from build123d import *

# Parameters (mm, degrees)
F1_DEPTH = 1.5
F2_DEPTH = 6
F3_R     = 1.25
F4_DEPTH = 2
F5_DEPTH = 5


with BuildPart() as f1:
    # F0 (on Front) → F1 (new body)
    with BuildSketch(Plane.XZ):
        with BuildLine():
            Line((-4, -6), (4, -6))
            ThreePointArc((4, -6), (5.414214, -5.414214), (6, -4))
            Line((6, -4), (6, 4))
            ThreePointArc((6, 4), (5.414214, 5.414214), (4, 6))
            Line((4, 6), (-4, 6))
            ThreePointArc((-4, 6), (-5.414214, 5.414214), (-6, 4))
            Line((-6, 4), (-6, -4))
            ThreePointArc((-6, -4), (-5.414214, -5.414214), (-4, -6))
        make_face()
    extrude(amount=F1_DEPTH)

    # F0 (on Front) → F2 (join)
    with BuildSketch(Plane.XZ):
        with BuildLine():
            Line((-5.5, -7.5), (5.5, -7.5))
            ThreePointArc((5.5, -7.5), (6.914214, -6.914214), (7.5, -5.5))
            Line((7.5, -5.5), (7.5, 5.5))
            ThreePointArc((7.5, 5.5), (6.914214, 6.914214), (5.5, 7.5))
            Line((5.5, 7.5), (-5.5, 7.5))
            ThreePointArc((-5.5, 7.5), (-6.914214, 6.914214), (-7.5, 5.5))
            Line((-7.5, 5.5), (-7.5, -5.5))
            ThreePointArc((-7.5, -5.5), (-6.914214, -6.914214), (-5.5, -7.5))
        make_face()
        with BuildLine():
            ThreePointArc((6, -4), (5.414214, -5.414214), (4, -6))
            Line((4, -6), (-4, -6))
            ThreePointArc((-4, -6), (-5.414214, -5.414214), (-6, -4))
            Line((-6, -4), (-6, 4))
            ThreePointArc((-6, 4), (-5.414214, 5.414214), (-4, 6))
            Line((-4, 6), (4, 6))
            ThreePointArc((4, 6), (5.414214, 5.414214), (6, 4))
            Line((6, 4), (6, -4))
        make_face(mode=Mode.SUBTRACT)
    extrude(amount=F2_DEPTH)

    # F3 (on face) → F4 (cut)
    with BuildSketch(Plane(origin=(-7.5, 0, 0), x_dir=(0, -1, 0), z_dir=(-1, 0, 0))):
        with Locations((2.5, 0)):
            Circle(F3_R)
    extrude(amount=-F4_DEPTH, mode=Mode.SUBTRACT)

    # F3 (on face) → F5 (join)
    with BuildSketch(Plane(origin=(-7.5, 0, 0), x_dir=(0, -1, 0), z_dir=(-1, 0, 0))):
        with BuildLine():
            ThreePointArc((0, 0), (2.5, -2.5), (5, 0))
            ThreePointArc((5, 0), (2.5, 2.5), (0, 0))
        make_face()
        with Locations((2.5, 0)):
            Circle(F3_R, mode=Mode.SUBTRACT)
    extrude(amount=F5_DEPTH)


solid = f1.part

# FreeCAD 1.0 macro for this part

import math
import FreeCAD as App
import Part
import Sketcher
from FreeCAD import Vector

doc = App.newDocument("Part")
body = doc.addObject("PartDesign::Body", "Body")

# Sketch on XZ plane
sketch1 = doc.addObject("Sketcher::SketchObject", "Sketch")
body.addObject(sketch1)
sketch1.AttachmentSupport = (doc.XZ_Plane, [""])
sketch1.MapMode = "FlatFace"
sketch1.addGeometry([
    Part.LineSegment(Vector(-4, -6, 0), Vector(4, -6, 0)),  # 0
    Part.ArcOfCircle(Part.Circle(Vector(4, -4, 0), Vector(0, 0, 1), 2), math.radians(-90), math.radians(0)),  # 1
    Part.LineSegment(Vector(6, -4, 0), Vector(6, 4, 0)),  # 2
    Part.ArcOfCircle(Part.Circle(Vector(4, 4, 0), Vector(0, 0, 1), 2), math.radians(0), math.radians(90)),  # 3
    Part.LineSegment(Vector(4, 6, 0), Vector(-4, 6, 0)),  # 4
    Part.ArcOfCircle(Part.Circle(Vector(-4, 4, 0), Vector(0, 0, 1), 2), math.radians(90), math.radians(180)),  # 5
    Part.LineSegment(Vector(-6, 4, 0), Vector(-6, -4, 0)),  # 6
    Part.ArcOfCircle(Part.Circle(Vector(-4, -4, 0), Vector(0, 0, 1), 2), math.radians(180), math.radians(270)),  # 7
], False)
sketch1.addConstraint([
    Sketcher.Constraint("Tangent", 0, 2, 1, 1),
    Sketcher.Constraint("Tangent", 1, 2, 2, 1),
    Sketcher.Constraint("Tangent", 2, 2, 3, 1),
    Sketcher.Constraint("Tangent", 3, 2, 4, 1),
    Sketcher.Constraint("Tangent", 4, 2, 5, 1),
    Sketcher.Constraint("Tangent", 5, 2, 6, 1),
    Sketcher.Constraint("Tangent", 6, 2, 7, 1),
    Sketcher.Constraint("Tangent", 7, 2, 0, 1),
    Sketcher.Constraint("Horizontal", 0),
    Sketcher.Constraint("Vertical", 2),
    Sketcher.Constraint("Horizontal", 4),
    Sketcher.Constraint("Vertical", 6),
    Sketcher.Constraint("Equal", 1, 3),
    Sketcher.Constraint("Equal", 3, 5),
    Sketcher.Constraint("Equal", 5, 7),
    Sketcher.Constraint("Symmetric", 1, 3, 5, 3, -1, 1),
    Sketcher.Constraint("Equal", 4, 2),
    Sketcher.Constraint("Radius", 1, 1.999999),
    Sketcher.Constraint("DistanceX", 0, 1, 0, 2, 8.0),
])
pad1 = doc.addObject("PartDesign::Pad", "Pad")
body.addObject(pad1)
pad1.Profile = sketch1
pad1.Length = 1.5

# Sketch on XZ plane
sketch2 = doc.addObject("Sketcher::SketchObject", "Sketch001")
body.addObject(sketch2)
sketch2.AttachmentSupport = (doc.XZ_Plane, [""])
sketch2.MapMode = "FlatFace"
sketch2.addGeometry([
    Part.LineSegment(Vector(-5.5, -7.5, 0), Vector(5.5, -7.5, 0)),  # 0
    Part.ArcOfCircle(Part.Circle(Vector(5.5, -5.5, 0), Vector(0, 0, 1), 2), math.radians(-90), math.radians(0)),  # 1
    Part.LineSegment(Vector(7.5, -5.5, 0), Vector(7.5, 5.5, 0)),  # 2
    Part.ArcOfCircle(Part.Circle(Vector(5.5, 5.5, 0), Vector(0, 0, 1), 2), math.radians(0), math.radians(90)),  # 3
    Part.LineSegment(Vector(5.5, 7.5, 0), Vector(-5.5, 7.5, 0)),  # 4
    Part.ArcOfCircle(Part.Circle(Vector(-5.5, 5.5, 0), Vector(0, 0, 1), 2), math.radians(90), math.radians(180)),  # 5
    Part.LineSegment(Vector(-7.5, 5.5, 0), Vector(-7.5, -5.5, 0)),  # 6
    Part.ArcOfCircle(Part.Circle(Vector(-5.5, -5.5, 0), Vector(0, 0, 1), 2), math.radians(180), math.radians(270)),  # 7
    Part.LineSegment(Vector(6, 4, 0), Vector(6, -4, 0)),  # 8
    Part.ArcOfCircle(Part.Circle(Vector(4, -4, 0), Vector(0, 0, 1), 2), math.radians(-90), math.radians(0)),  # 9
    Part.LineSegment(Vector(4, -6, 0), Vector(-4, -6, 0)),  # 10
    Part.ArcOfCircle(Part.Circle(Vector(-4, -4, 0), Vector(0, 0, 1), 2), math.radians(180), math.radians(270)),  # 11
    Part.LineSegment(Vector(-6, -4, 0), Vector(-6, 4, 0)),  # 12
    Part.ArcOfCircle(Part.Circle(Vector(-4, 4, 0), Vector(0, 0, 1), 2), math.radians(90), math.radians(180)),  # 13
    Part.LineSegment(Vector(-4, 6, 0), Vector(4, 6, 0)),  # 14
    Part.ArcOfCircle(Part.Circle(Vector(4, 4, 0), Vector(0, 0, 1), 2), math.radians(0), math.radians(90)),  # 15
], False)
sketch2.addConstraint([
    Sketcher.Constraint("Tangent", 0, 2, 1, 1),
    Sketcher.Constraint("Tangent", 1, 2, 2, 1),
    Sketcher.Constraint("Tangent", 2, 2, 3, 1),
    Sketcher.Constraint("Tangent", 3, 2, 4, 1),
    Sketcher.Constraint("Tangent", 4, 2, 5, 1),
    Sketcher.Constraint("Tangent", 5, 2, 6, 1),
    Sketcher.Constraint("Tangent", 6, 2, 7, 1),
    Sketcher.Constraint("Tangent", 7, 2, 0, 1),
    Sketcher.Constraint("Tangent", 8, 2, 9, 2),
    Sketcher.Constraint("Tangent", 9, 1, 10, 1),
    Sketcher.Constraint("Tangent", 10, 2, 11, 2),
    Sketcher.Constraint("Tangent", 11, 1, 12, 1),
    Sketcher.Constraint("Tangent", 12, 2, 13, 2),
    Sketcher.Constraint("Tangent", 13, 1, 14, 1),
    Sketcher.Constraint("Tangent", 14, 2, 15, 2),
    Sketcher.Constraint("Tangent", 15, 1, 8, 1),
    Sketcher.Constraint("Horizontal", 0),
    Sketcher.Constraint("Vertical", 2),
    Sketcher.Constraint("Horizontal", 4),
    Sketcher.Constraint("Vertical", 6),
    Sketcher.Constraint("Vertical", 8),
    Sketcher.Constraint("Horizontal", 10),
    Sketcher.Constraint("Vertical", 12),
    Sketcher.Constraint("Horizontal", 14),
    Sketcher.Constraint("Equal", 1, 3),
    Sketcher.Constraint("Equal", 3, 5),
    Sketcher.Constraint("Equal", 5, 7),
    Sketcher.Constraint("Equal", 7, 9),
    Sketcher.Constraint("Equal", 9, 11),
    Sketcher.Constraint("Equal", 11, 13),
    Sketcher.Constraint("Equal", 13, 15),
    Sketcher.Constraint("Symmetric", 1, 3, 5, 3, -1, 1),
    Sketcher.Constraint("Symmetric", 9, 3, 13, 3, -1, 1),
    Sketcher.Constraint("Equal", 4, 2),
    Sketcher.Constraint("Equal", 14, 8),
    Sketcher.Constraint("Radius", 1, 1.999999),
    Sketcher.Constraint("DistanceX", 0, 1, 0, 2, 11.0),
    Sketcher.Constraint("DistanceX", 10, 2, 10, 1, 8.0),
])
pad2 = doc.addObject("PartDesign::Pad", "Pad001")
body.addObject(pad2)
pad2.Profile = sketch2
pad2.Length = 6

# Sketch on YZ plane
sketch3 = doc.addObject("Sketcher::SketchObject", "Sketch002")
body.addObject(sketch3)
sketch3.AttachmentSupport = (doc.YZ_Plane, [""])
sketch3.MapMode = "FlatFace"
sketch3.AttachmentOffset = App.Placement(Vector(0, 0, -7.5), App.Rotation())
sketch3.addGeometry(Part.Circle(Vector(-2.5, 0, 0), Vector(0, 0, 1), 1.2), False)
sketch3.addConstraint([
    Sketcher.Constraint("PointOnObject", 0, 3, -1),
    Sketcher.Constraint("Diameter", 0, 2.5),
    Sketcher.Constraint("DistanceX", 0, 3, -1, 1, 2.5),
])
pocket1 = doc.addObject("PartDesign::Pocket", "Pocket")
body.addObject(pocket1)
pocket1.Profile = sketch3
pocket1.Length = 2
pocket1.Reversed = True

# Sketch on YZ plane
sketch4 = doc.addObject("Sketcher::SketchObject", "Sketch003")
body.addObject(sketch4)
sketch4.AttachmentSupport = (doc.YZ_Plane, [""])
sketch4.MapMode = "FlatFace"
sketch4.AttachmentOffset = App.Placement(Vector(0, 0, -7.5), App.Rotation())
sketch4.addGeometry([
    Part.Circle(Vector(-2.5, 0, 0), Vector(0, 0, 1), 2.5),
    Part.Circle(Vector(-2.5, 0, 0), Vector(0, 0, 1), 1.2),
], False)
sketch4.addConstraint([
    Sketcher.Constraint("Coincident", 1, 3, 0, 3),
    Sketcher.Constraint("PointOnObject", 0, 3, -1),
    Sketcher.Constraint("Diameter", 0, 5.0),
    Sketcher.Constraint("Diameter", 1, 2.5),
    Sketcher.Constraint("DistanceX", 0, 3, -1, 1, 2.5),
])
pad3 = doc.addObject("PartDesign::Pad", "Pad002")
body.addObject(pad3)
pad3.Profile = sketch4
pad3.Length = 5
pad3.Reversed = True

doc.recompute()
